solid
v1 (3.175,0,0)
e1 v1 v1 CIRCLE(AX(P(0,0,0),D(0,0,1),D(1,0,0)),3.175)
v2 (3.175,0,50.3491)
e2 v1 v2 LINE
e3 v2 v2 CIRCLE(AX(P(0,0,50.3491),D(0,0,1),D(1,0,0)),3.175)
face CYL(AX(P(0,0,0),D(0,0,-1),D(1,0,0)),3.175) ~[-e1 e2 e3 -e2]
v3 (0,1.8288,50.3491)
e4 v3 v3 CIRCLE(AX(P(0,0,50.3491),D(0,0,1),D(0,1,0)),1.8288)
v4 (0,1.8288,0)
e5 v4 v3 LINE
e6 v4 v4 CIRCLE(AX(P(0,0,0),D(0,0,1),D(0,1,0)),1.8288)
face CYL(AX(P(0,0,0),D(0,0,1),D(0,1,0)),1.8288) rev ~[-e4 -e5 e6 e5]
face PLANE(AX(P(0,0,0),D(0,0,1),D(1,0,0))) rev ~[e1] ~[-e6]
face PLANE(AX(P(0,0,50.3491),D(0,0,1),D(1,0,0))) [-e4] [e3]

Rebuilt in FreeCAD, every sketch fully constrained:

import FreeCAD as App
import Part
import Sketcher
Q = App.Units.Quantity

doc = App.newDocument("Part")
params = doc.addObject("Spreadsheet::Sheet", "Params")
for row, (alias, value) in enumerate([
    ("sketch1_diameter", "0.25 in"),
    ("pad1_length", "50.3491 mm"),
    ("sketch2_diameter", "0.144 in"),
    ("hole_diameter", "0.144 in"),
], start=1):
    params.set(f"A{row}", alias)
    params.set(f"B{row}", "=" + value)
    params.setAlias(f"B{row}", alias)

body = doc.addObject("PartDesign::Body", "Body")

# Sketch on XY plane
sketch1 = body.newObject("Sketcher::SketchObject", "Sketch")
sketch1.AttachmentSupport = (doc.getObject("XY_Plane"), [""])
sketch1.MapMode = "FlatFace"
sketch1.addGeometry(Part.Circle(App.Vector(0, 0, 0), App.Vector(0, 0, 1), 3.2), False)
sketch1.addConstraint(Sketcher.Constraint("Coincident", 0, 3, -1, 1))
sketch1.addConstraint(Sketcher.Constraint("Diameter", 0, Q("0.25 in")))
sketch1.setExpression("Constraints[1]", "Params.sketch1_diameter")
pad1 = body.newObject("PartDesign::Pad", "Pad")
pad1.Profile = sketch1
pad1.setExpression("Length", "Params.pad1_length")

# Sketch on XY plane
sketch2 = body.newObject("Sketcher::SketchObject", "Sketch001")
sketch2.AttachmentSupport = (doc.getObject("XY_Plane"), [""])
sketch2.MapMode = "FlatFace"
sketch2.addGeometry(Part.Circle(App.Vector(0, 0, 0), App.Vector(0, 0, 1), 1.8), False)
sketch2.addConstraint(Sketcher.Constraint("Coincident", 0, 3, -1, 1))
sketch2.addConstraint(Sketcher.Constraint("Diameter", 0, Q("0.144 in")))
sketch2.setExpression("Constraints[1]", "Params.sketch2_diameter")
doc.recompute()
hole = body.newObject("PartDesign::Hole", "Hole")
hole.Profile = sketch2
hole.ThreadType = "None"
hole.setExpression("Diameter", "Params.hole_diameter")
hole.DepthType = "ThroughAll"
hole.Reversed = True

doc.recompute()
